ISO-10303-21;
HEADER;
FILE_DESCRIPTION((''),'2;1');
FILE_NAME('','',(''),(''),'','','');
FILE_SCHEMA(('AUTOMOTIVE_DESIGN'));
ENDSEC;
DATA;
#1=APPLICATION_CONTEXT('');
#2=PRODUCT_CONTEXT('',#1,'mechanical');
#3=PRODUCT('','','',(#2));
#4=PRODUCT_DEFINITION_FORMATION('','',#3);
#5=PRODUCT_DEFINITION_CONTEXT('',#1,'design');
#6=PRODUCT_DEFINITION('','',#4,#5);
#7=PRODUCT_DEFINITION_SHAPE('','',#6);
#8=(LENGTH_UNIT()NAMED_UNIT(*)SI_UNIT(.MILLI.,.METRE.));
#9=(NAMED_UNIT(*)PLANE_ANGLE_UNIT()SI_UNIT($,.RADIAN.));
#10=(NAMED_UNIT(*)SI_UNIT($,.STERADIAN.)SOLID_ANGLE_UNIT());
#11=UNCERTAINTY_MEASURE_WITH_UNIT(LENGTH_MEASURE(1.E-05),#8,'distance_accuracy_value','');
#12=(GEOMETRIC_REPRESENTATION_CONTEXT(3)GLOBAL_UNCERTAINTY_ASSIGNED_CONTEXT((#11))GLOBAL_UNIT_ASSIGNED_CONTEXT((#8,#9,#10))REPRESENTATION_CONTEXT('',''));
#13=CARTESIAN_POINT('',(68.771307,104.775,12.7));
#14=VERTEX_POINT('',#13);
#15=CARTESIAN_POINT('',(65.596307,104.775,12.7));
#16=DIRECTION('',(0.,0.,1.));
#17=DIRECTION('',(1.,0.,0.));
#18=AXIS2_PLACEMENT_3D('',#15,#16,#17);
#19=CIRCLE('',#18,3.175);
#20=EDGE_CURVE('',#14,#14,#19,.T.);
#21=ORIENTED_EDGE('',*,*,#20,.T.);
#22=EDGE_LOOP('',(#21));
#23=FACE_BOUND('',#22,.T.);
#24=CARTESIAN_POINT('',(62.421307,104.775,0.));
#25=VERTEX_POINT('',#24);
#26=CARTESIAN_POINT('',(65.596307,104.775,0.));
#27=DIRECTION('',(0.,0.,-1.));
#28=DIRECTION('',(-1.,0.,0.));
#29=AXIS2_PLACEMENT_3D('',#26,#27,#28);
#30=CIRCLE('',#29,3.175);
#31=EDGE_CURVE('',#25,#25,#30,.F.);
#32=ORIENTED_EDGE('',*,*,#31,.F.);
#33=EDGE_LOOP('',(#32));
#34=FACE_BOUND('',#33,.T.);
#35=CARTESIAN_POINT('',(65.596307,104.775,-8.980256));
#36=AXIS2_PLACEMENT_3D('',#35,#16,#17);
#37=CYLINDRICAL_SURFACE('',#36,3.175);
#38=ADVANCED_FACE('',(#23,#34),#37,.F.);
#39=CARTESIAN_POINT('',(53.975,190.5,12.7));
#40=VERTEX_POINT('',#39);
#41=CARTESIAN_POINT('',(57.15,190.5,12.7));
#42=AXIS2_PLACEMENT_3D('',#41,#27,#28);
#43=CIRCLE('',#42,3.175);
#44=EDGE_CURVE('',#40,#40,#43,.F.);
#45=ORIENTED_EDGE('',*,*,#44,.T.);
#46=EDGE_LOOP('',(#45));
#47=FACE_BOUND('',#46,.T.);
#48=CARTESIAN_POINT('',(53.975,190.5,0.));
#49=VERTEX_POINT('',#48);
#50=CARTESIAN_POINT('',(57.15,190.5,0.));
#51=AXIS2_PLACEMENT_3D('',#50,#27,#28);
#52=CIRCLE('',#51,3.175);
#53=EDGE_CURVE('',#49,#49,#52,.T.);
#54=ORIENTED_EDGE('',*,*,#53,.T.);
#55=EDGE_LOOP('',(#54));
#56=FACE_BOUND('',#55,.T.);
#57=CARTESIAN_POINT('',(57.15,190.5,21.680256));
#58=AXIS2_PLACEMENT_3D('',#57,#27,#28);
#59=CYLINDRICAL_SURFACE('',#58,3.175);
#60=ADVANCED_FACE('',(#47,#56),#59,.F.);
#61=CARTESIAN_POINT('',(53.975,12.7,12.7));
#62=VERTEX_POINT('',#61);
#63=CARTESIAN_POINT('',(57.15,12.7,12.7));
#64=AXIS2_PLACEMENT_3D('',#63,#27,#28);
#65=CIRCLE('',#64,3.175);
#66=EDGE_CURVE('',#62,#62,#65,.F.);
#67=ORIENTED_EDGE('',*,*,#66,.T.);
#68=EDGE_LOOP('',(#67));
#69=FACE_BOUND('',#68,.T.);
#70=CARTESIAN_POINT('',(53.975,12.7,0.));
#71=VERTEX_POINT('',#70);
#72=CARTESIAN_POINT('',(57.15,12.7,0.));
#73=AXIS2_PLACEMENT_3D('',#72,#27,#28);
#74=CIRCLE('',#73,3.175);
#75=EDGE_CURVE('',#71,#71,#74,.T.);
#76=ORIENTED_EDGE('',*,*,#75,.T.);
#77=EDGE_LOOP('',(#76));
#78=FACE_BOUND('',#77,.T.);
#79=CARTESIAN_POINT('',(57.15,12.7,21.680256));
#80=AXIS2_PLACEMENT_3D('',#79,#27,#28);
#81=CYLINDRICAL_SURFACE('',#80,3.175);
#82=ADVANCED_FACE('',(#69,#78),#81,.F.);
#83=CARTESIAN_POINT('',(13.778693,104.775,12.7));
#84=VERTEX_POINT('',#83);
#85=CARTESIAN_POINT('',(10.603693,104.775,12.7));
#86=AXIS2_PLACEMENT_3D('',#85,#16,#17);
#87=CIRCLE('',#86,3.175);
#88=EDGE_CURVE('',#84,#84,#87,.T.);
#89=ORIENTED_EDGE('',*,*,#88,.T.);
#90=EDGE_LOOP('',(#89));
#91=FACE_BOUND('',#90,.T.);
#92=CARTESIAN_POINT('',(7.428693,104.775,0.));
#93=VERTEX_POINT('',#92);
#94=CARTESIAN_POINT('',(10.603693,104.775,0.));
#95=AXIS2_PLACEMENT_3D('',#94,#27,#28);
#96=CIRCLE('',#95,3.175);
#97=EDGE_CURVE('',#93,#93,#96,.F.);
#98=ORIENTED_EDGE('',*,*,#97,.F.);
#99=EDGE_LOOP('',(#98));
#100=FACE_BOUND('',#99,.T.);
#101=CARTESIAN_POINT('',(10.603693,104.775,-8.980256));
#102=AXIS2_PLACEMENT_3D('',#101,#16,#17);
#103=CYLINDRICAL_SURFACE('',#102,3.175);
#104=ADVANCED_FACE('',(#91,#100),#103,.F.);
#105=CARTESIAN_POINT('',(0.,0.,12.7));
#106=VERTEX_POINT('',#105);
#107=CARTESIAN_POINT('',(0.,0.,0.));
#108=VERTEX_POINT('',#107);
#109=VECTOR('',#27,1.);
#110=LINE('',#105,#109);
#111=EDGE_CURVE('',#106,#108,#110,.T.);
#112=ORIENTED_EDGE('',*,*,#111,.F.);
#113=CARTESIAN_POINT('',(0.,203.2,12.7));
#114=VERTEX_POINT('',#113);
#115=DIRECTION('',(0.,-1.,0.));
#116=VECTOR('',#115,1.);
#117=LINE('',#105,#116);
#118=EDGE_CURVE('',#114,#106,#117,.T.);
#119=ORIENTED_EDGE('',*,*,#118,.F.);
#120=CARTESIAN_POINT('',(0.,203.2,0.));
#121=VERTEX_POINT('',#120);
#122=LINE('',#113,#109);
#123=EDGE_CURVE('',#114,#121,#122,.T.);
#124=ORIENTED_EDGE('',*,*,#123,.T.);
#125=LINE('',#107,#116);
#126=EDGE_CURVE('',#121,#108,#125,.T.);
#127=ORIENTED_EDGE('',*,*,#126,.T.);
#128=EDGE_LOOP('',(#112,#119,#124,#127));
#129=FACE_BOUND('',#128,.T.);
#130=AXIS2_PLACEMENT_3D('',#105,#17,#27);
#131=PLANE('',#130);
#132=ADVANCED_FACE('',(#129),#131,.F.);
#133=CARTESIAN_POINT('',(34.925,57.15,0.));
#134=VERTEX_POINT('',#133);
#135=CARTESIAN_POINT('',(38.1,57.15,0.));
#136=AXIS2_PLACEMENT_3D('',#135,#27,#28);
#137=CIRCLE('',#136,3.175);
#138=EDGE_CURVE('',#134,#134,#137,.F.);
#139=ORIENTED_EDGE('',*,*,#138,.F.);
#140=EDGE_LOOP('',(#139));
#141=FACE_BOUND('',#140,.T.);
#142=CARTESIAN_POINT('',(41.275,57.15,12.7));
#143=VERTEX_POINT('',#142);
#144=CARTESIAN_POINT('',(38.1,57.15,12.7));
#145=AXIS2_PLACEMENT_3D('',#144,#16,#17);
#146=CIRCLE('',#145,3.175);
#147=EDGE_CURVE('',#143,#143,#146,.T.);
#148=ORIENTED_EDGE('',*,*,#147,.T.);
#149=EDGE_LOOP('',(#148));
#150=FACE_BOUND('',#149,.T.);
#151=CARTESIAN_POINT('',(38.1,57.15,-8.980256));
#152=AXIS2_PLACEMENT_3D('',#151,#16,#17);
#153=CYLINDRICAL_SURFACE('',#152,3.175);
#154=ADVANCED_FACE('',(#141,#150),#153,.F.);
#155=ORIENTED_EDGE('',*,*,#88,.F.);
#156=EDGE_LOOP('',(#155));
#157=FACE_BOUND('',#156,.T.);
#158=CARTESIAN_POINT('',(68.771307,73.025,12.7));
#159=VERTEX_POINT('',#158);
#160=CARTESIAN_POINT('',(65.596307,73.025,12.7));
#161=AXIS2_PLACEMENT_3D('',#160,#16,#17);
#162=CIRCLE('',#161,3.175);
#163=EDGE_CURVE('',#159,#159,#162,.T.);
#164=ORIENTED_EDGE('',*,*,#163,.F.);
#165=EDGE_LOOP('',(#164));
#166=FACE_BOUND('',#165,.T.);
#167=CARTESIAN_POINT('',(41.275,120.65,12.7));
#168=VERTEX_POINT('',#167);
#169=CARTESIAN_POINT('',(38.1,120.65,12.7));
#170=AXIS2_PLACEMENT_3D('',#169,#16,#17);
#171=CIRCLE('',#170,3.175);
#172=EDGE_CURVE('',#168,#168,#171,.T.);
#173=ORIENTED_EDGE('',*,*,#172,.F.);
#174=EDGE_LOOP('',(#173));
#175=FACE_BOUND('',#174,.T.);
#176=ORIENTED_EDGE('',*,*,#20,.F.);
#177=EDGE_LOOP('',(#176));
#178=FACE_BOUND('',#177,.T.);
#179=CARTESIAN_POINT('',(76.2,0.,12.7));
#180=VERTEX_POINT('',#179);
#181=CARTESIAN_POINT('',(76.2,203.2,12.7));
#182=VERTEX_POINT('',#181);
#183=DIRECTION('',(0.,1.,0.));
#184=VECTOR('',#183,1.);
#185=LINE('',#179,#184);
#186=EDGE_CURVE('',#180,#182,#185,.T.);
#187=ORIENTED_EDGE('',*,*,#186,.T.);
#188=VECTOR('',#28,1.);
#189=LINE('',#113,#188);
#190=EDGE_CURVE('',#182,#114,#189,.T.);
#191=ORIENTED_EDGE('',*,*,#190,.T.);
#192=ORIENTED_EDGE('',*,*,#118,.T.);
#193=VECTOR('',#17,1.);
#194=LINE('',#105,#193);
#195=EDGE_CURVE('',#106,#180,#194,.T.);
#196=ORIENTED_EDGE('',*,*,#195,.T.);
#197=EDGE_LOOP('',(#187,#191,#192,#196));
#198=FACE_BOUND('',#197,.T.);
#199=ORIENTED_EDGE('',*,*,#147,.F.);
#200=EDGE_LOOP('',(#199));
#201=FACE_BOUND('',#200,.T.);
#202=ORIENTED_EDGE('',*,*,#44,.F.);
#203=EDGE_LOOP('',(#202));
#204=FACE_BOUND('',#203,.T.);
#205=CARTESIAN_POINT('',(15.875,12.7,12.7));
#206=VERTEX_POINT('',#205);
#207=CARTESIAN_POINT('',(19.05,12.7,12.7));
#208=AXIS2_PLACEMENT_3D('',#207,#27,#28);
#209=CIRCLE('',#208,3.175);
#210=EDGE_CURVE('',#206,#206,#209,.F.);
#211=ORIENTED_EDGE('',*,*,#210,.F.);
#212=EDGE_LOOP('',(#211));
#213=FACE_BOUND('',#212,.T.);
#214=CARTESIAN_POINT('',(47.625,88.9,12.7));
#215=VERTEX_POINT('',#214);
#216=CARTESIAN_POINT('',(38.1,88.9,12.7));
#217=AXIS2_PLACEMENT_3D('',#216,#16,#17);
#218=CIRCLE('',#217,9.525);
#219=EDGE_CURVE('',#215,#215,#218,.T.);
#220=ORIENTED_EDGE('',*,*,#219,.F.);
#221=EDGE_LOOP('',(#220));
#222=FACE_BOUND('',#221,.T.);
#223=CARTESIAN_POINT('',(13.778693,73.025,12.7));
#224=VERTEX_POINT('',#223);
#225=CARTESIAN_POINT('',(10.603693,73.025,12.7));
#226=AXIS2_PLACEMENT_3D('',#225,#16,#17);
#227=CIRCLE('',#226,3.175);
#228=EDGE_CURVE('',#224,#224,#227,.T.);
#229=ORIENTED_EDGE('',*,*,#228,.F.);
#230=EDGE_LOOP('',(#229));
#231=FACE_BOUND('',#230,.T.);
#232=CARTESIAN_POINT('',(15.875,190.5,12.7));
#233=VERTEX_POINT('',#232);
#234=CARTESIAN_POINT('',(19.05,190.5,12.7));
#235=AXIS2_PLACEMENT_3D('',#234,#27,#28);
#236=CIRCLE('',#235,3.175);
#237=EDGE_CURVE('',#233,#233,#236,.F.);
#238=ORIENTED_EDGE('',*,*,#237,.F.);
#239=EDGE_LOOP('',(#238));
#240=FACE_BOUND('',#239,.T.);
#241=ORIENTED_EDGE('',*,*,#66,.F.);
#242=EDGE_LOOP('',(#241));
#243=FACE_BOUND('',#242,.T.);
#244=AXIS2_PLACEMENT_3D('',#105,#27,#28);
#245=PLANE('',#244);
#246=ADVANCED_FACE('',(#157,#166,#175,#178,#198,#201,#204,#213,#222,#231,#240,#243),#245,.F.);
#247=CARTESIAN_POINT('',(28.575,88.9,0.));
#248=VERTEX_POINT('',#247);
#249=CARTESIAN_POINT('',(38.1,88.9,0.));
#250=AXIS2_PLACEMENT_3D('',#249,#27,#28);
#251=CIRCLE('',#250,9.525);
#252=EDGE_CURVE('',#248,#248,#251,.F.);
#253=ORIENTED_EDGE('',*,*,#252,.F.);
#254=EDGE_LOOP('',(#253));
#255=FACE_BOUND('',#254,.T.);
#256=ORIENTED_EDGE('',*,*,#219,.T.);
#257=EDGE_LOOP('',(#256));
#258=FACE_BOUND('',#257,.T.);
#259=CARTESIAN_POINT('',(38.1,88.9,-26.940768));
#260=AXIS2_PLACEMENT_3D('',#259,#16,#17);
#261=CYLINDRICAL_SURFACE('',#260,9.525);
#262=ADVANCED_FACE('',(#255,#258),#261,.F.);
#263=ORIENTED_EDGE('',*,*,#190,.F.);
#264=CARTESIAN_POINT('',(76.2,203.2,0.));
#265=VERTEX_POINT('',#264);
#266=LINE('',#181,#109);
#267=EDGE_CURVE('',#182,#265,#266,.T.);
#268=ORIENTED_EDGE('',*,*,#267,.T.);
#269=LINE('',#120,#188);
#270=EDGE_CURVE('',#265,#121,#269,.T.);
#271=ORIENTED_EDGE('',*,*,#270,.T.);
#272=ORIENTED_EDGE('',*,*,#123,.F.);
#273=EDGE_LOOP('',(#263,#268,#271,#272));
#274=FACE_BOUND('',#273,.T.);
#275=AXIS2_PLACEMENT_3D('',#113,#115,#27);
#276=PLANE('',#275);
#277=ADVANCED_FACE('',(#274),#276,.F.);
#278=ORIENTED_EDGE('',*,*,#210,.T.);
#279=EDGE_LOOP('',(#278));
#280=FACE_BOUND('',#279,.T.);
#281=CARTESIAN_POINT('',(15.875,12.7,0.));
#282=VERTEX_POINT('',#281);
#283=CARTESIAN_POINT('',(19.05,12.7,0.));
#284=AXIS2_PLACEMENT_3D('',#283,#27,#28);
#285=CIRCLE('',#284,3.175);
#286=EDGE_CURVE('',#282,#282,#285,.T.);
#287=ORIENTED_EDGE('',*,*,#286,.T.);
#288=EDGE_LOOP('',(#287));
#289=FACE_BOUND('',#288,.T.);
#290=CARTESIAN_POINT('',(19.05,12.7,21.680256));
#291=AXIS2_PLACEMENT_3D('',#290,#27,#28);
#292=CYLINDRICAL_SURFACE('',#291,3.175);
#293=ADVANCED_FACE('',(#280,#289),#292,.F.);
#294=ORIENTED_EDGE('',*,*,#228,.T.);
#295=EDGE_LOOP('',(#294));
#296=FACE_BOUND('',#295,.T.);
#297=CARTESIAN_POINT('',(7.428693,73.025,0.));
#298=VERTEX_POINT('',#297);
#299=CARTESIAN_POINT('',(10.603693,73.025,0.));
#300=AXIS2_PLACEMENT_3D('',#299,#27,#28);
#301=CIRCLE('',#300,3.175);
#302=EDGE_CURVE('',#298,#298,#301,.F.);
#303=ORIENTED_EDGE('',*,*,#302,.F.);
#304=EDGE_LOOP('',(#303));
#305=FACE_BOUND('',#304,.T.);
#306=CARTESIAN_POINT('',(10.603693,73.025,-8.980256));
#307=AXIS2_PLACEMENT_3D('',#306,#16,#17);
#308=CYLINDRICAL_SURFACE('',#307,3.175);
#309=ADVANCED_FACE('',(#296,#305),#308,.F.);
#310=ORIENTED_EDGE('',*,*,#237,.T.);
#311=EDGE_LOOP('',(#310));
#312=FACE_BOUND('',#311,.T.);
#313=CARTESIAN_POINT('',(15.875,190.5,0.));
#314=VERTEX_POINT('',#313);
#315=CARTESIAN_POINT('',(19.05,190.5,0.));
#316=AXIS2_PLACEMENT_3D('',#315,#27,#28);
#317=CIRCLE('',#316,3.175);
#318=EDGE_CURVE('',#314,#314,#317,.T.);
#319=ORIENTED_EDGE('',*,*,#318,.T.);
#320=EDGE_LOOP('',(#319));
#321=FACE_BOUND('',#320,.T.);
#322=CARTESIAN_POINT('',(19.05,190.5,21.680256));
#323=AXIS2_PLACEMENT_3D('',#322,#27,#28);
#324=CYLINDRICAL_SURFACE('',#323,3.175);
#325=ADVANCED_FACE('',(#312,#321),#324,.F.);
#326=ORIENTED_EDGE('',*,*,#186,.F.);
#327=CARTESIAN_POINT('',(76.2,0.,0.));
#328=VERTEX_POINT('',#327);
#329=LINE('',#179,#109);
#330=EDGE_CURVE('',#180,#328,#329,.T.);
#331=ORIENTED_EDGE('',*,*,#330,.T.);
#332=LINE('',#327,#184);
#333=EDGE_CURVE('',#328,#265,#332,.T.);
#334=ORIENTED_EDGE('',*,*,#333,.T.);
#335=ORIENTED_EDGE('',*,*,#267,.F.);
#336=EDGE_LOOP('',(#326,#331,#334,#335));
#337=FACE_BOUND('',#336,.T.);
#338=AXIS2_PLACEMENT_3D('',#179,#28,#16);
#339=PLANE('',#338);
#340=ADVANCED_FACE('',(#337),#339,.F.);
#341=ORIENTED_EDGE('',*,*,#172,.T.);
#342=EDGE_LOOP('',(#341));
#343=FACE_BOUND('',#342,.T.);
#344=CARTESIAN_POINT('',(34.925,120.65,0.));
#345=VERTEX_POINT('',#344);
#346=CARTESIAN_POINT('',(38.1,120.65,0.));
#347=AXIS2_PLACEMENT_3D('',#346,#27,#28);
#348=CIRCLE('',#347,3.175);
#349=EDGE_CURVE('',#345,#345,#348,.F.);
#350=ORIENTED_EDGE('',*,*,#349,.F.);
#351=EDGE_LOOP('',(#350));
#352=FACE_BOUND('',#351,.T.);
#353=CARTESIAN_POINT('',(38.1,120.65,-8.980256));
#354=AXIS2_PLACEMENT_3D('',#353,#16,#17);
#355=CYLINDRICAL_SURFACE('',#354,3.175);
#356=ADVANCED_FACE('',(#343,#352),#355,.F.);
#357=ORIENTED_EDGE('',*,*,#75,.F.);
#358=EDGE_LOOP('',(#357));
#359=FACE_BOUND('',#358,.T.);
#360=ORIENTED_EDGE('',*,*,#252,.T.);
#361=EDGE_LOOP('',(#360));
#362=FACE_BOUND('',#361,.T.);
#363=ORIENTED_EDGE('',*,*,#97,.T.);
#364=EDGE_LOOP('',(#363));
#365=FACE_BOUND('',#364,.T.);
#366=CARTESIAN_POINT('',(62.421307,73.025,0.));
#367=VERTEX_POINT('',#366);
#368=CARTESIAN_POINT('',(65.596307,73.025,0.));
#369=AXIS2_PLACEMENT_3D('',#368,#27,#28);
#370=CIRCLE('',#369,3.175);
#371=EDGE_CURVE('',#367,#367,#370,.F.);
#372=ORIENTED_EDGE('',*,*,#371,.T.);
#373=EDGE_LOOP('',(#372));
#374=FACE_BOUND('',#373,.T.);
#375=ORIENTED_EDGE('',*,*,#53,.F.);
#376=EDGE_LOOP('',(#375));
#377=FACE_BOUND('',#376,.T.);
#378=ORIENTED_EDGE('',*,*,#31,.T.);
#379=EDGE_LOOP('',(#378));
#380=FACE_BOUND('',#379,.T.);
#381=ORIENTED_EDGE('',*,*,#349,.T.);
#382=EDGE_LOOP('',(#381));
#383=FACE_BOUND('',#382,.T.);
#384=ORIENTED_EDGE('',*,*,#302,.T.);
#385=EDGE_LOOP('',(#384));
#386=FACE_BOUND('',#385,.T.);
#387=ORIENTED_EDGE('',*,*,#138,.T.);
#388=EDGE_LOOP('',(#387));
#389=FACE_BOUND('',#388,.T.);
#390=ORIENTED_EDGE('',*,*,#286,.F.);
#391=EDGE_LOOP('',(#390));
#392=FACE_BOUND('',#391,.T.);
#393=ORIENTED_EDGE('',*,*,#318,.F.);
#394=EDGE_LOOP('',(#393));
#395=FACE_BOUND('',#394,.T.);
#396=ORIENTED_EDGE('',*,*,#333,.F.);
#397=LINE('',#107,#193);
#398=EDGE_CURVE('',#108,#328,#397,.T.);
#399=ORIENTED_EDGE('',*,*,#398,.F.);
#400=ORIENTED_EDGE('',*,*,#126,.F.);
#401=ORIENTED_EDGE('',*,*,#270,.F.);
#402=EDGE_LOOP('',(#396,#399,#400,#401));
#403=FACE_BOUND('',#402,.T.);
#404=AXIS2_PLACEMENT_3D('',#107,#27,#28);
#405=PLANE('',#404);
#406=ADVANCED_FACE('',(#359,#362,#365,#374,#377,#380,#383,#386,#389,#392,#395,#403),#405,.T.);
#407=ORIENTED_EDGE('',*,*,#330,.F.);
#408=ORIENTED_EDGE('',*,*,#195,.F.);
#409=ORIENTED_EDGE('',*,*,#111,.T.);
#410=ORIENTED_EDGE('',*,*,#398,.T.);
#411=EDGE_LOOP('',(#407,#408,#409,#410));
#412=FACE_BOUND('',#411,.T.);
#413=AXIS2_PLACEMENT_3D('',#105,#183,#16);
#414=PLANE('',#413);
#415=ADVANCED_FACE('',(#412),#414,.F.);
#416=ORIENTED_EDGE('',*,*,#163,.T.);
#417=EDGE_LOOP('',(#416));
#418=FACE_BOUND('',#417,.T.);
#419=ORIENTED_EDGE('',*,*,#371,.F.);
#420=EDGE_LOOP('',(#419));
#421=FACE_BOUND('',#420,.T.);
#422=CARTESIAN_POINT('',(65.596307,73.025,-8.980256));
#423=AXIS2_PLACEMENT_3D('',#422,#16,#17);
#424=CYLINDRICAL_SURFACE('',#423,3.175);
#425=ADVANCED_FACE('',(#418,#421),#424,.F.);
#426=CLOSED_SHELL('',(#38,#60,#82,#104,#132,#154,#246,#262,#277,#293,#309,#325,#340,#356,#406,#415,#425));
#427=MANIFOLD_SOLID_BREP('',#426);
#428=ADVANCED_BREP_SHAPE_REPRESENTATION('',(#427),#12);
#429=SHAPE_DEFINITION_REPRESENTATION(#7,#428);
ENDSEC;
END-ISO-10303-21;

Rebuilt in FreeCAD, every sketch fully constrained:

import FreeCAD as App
import Part
import Sketcher
Q = App.Units.Quantity


def add_polygon(sketch, points):
    """Adds a closed chain of lines whose ends are joined by coincident constraints."""
    first, n = sketch.GeometryCount, len(points)
    for a, b in zip(points, points[1:] + points[:1]):
        sketch.addGeometry(Part.LineSegment(App.Vector(*a, 0), App.Vector(*b, 0)), False)
    for i in range(n):
        sketch.addConstraint(Sketcher.Constraint("Coincident", first + i, 2, first + (i + 1) % n, 1))

doc = App.newDocument("Part")
body = doc.addObject("PartDesign::Body", "Body")

# Sketch on XY plane
sketch1 = doc.addObject("Sketcher::SketchObject", "Sketch")
body.addObject(sketch1)
sketch1.AttachmentSupport = (doc.XY_Plane, [""])
sketch1.MapMode = "FlatFace"
add_polygon(sketch1, [(0, 203), (0, 0), (76, 0), (76, 203)])  # lines 0-3
sketch1.addConstraint([
    Sketcher.Constraint("Vertical", 0),
    Sketcher.Constraint("Horizontal", 1),
    Sketcher.Constraint("Vertical", 2),
    Sketcher.Constraint("Horizontal", 3),
    Sketcher.Constraint("Coincident", 0, 2, -1, 1),
    Sketcher.Constraint("DistanceX", 1, 1, 1, 2, Q("3 in")),
    Sketcher.Constraint("DistanceY", 0, 2, 0, 1, Q("8 in")),
])
pad1 = doc.addObject("PartDesign::Pad", "Pad")
body.addObject(pad1)
pad1.Profile = sketch1
pad1.Length = Q("0.5 in")

# Sketch on XY plane
sketch2 = doc.addObject("Sketcher::SketchObject", "Sketch001")
body.addObject(sketch2)
sketch2.AttachmentSupport = (doc.XY_Plane, [""])
sketch2.MapMode = "FlatFace"
sketch2.addGeometry([
    Part.Circle(App.Vector(57.1, 190.5, 0), App.Vector(0, 0, 1), 3.2),
    Part.Circle(App.Vector(19.1, 190.5, 0), App.Vector(0, 0, 1), 3.2),
    Part.Circle(App.Vector(19.1, 12.7, 0), App.Vector(0, 0, 1), 3.2),
    Part.Circle(App.Vector(57.1, 12.7, 0), App.Vector(0, 0, 1), 3.2),
], False)
sketch2.addConstraint([
    Sketcher.Constraint("Equal", 0, 1),
    Sketcher.Constraint("Equal", 1, 2),
    Sketcher.Constraint("Equal", 2, 3),
    Sketcher.Constraint("Horizontal", 0, 3, 1, 3),
    Sketcher.Constraint("Horizontal", 2, 3, 3, 3),
    Sketcher.Constraint("Vertical", 1, 3, 2, 3),
    Sketcher.Constraint("Vertical", 0, 3, 3, 3),
    Sketcher.Constraint("Diameter", 0, Q("0.25 in")),
    Sketcher.Constraint("DistanceY", 2, 3, 1, 3, Q("7 in")),
    Sketcher.Constraint("DistanceY", -1, 1, 0, 3, Q("7.5 in")),
    Sketcher.Constraint("DistanceX", 1, 3, 0, 3, Q("1.5 in")),
    Sketcher.Constraint("DistanceX", -1, 1, 0, 3, Q("2.25 in")),
])
pocket1 = doc.addObject("PartDesign::Pocket", "Pocket")
body.addObject(pocket1)
pocket1.Profile = sketch2
pocket1.Length = Q("0.5 in")
pocket1.Reversed = True

# Sketch on XY plane
sketch3 = doc.addObject("Sketcher::SketchObject", "Sketch002")
body.addObject(sketch3)
sketch3.AttachmentSupport = (doc.XY_Plane, [""])
sketch3.MapMode = "FlatFace"
sketch3.AttachmentOffset = App.Placement(App.Vector(0, 0, 0.5 * 25.4), App.Rotation())
sketch3.addGeometry(Part.Circle(App.Vector(38, 89, 0), App.Vector(0, 0, 1), 10), False)
sketch3.addConstraint([
    Sketcher.Constraint("Diameter", 0, Q("0.75 in")),
    Sketcher.Constraint("DistanceX", -1, 1, 0, 3, Q("1.5 in")),
    Sketcher.Constraint("DistanceY", -1, 1, 0, 3, Q("3.5 in")),
])
pocket2 = doc.addObject("PartDesign::Pocket", "Pocket001")
body.addObject(pocket2)
pocket2.Profile = sketch3
pocket2.Length = Q("0.5 in")

# Sketch on XY plane
sketch4 = doc.addObject("Sketcher::SketchObject", "Sketch003")
body.addObject(sketch4)
sketch4.AttachmentSupport = (doc.XY_Plane, [""])
sketch4.MapMode = "FlatFace"
sketch4.AttachmentOffset = App.Placement(App.Vector(0, 0, 0.5 * 25.4), App.Rotation())
sketch4.addGeometry([
    Part.Circle(App.Vector(38.1, 120.7, 0), App.Vector(0, 0, 1), 3.2),  # 0
    Part.Circle(App.Vector(65.6, 104.8, 0), App.Vector(0, 0, 1), 3.2),  # 1
    Part.Circle(App.Vector(65.6, 73, 0), App.Vector(0, 0, 1), 3.2),  # 2
    Part.Circle(App.Vector(38.1, 57.1, 0), App.Vector(0, 0, 1), 3.2),  # 3
    Part.Circle(App.Vector(10.6, 73, 0), App.Vector(0, 0, 1), 3.2),  # 4
    Part.Circle(App.Vector(10.6, 104.8, 0), App.Vector(0, 0, 1), 3.2),  # 5
], False)
sketch4.addConstraint([
    Sketcher.Constraint("Equal", 0, 1),
    Sketcher.Constraint("Equal", 1, 2),
    Sketcher.Constraint("Equal", 2, 3),
    Sketcher.Constraint("Equal", 3, 4),
    Sketcher.Constraint("Equal", 4, 5),
    Sketcher.Constraint("Horizontal", 2, 3, 4, 3),
    Sketcher.Constraint("Horizontal", 1, 3, 5, 3),
    Sketcher.Constraint("Vertical", 1, 3, 2, 3),
    Sketcher.Constraint("Vertical", 0, 3, 3, 3),
    Sketcher.Constraint("Vertical", 4, 3, 5, 3),
    Sketcher.Constraint("Diameter", 0, Q("0.25 in")),
    Sketcher.Constraint("DistanceX", -1, 1, 0, 3, Q("1.5 in")),
    Sketcher.Constraint("DistanceY", 3, 3, 0, 3, Q("2.5 in")),
    Sketcher.Constraint("DistanceY", -1, 1, 0, 3, Q("4.75 in")),
    Sketcher.Constraint("DistanceY", 2, 3, 1, 3, Q("1.25 in")),
    Sketcher.Constraint("DistanceY", -1, 1, 1, 3, Q("4.125 in")),
    Sketcher.Constraint("DistanceX", -1, 1, 1, 3, Q("65.596307 mm")),
    Sketcher.Constraint("DistanceX", -1, 1, 4, 3, Q("10.603693 mm")),
])
pocket3 = doc.addObject("PartDesign::Pocket", "Pocket002")
body.addObject(pocket3)
pocket3.Profile = sketch4
pocket3.Length = Q("0.5 in")

doc.recompute()
